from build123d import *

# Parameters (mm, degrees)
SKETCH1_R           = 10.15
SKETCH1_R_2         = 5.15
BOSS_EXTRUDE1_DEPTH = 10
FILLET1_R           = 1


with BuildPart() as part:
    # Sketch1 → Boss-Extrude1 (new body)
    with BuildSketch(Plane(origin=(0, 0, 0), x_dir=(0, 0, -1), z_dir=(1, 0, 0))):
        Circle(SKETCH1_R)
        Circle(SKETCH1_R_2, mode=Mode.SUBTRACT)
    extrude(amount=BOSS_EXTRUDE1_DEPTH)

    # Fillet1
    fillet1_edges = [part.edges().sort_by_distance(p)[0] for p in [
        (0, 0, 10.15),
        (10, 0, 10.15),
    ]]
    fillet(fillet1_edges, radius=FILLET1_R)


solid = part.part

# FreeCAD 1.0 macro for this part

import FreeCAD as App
import Part
import Sketcher

V = App.Vector
Q = App.Units.Quantity


def edges_at(feature, points):
    """Names of the edges that pass closest to the given points."""
    edges = feature.Shape.Edges
    near = lambda p: min(range(len(edges)), key=lambda i: edges[i].distToShape(Part.Vertex(*p))[0])
    return sorted({f"Edge{near(p) + 1}" for p in points})

doc = App.newDocument("Part")
body = doc.addObject("PartDesign::Body", "Body")

# Sketch on YZ plane
sketch1 = body.newObject("Sketcher::SketchObject", "Sketch")
sketch1.AttachmentSupport = (doc.getObject("YZ_Plane"), [""])
sketch1.MapMode = "FlatFace"
sketch1.addGeometry(Part.Circle(V(0, 0, 0), V(0, 0, 1), 10), False)
sketch1.addGeometry(Part.Circle(V(0, 0, 0), V(0, 0, 1), 5), False)
sketch1.addConstraint(Sketcher.Constraint("Coincident", 0, 3, -1, 1))
sketch1.addConstraint(Sketcher.Constraint("Coincident", 1, 3, -1, 1))
sketch1.addConstraint(Sketcher.Constraint("Diameter", 0, Q("20.3 mm")))
sketch1.addConstraint(Sketcher.Constraint("Diameter", 1, Q("10.3 mm")))
pad1 = body.newObject("PartDesign::Pad", "Pad")
pad1.Profile = sketch1
pad1.Length = 10
doc.recompute()

fillet = body.newObject("PartDesign::Fillet", "Fillet")
fillet.Base = (pad1, edges_at(pad1, [(0, 0, 10.15), (10, 0, 10.15)]))
fillet.Radius = 1

doc.recompute()
